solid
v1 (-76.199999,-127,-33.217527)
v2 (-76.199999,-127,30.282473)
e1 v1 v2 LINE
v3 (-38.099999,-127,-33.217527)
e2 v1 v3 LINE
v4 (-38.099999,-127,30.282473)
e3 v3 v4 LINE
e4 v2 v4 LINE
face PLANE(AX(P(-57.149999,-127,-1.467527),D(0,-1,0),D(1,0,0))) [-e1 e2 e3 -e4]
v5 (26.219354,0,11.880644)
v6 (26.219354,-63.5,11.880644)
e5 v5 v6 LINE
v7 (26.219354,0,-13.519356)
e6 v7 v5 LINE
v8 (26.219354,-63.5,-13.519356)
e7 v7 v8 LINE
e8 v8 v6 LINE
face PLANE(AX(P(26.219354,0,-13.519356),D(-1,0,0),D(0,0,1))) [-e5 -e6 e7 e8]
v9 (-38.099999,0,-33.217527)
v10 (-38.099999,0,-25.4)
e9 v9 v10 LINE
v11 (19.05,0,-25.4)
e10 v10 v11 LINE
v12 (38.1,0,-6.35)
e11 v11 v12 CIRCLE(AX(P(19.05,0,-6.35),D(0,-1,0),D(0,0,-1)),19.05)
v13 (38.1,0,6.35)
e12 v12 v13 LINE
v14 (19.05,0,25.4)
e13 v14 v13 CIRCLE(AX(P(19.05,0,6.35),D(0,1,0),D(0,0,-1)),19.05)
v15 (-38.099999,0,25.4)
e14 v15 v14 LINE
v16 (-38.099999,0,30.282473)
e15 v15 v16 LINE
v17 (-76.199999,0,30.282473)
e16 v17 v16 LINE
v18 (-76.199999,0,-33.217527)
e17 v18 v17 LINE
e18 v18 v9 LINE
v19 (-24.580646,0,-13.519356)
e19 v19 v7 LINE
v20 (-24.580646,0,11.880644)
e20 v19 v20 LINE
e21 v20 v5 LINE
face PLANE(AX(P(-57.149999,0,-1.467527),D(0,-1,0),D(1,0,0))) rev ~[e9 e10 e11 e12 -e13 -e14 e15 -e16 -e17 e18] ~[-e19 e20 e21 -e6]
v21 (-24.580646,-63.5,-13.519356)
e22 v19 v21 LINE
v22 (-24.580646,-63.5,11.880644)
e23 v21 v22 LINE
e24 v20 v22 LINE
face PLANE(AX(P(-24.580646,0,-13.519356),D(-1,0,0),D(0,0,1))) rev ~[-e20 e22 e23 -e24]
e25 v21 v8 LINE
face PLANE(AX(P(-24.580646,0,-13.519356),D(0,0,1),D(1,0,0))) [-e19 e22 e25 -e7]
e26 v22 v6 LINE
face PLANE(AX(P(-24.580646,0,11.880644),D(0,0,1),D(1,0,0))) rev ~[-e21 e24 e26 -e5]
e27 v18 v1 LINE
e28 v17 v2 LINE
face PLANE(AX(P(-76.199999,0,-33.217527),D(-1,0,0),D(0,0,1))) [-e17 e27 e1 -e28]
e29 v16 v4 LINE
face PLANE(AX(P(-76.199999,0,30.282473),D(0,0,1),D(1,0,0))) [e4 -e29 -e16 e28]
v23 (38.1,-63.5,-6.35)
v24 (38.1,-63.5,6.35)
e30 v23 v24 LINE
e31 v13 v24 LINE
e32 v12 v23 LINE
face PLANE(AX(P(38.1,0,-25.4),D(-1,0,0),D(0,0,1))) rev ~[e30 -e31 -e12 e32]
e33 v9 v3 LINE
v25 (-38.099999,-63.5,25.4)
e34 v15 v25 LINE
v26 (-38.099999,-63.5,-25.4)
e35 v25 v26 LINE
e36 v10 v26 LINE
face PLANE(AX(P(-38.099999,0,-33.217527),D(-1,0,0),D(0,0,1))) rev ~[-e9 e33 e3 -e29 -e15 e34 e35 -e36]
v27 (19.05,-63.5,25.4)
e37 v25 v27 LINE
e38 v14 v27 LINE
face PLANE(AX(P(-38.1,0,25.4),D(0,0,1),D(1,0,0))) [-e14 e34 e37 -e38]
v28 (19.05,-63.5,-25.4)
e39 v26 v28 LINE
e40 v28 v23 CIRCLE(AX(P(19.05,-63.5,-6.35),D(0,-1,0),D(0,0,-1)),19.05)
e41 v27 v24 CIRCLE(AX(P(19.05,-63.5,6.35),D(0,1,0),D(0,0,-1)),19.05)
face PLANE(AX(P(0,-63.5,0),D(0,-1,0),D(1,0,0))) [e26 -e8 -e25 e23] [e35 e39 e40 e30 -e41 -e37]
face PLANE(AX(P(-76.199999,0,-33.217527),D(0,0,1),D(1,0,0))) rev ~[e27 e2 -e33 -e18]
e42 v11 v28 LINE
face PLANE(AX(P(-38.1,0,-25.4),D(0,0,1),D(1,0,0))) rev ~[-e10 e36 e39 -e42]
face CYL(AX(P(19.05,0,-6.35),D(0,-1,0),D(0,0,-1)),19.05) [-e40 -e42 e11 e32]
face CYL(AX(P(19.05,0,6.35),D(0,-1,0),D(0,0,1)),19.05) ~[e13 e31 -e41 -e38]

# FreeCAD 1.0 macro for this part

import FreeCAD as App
import Part
import Sketcher
from FreeCAD import Vector
Q = App.Units.Quantity


def edges_at(feature, points):
    """Names of the edges that pass closest to the given points."""
    edges = feature.Shape.Edges
    near = lambda p: min(range(len(edges)), key=lambda i: edges[i].distToShape(Part.Vertex(*p))[0])
    return sorted({f"Edge{near(p) + 1}" for p in points})

doc = App.newDocument("Part")
body = doc.addObject("PartDesign::Body", "Body")

# Sketch on XZ plane
sketch1 = body.newObject("Sketcher::SketchObject", "Sketch")
sketch1.AttachmentSupport = (doc.getObject("XZ_Plane"), [""])
sketch1.MapMode = "FlatFace"
sketch1.addGeometry([
    Part.LineSegment(Vector(-38, 25, 0), Vector(-38, -25, 0)),  # 0
    Part.LineSegment(Vector(-38, -25, 0), Vector(38, -25, 0)),  # 1
    Part.LineSegment(Vector(38, -25, 0), Vector(38, 25, 0)),  # 2
    Part.LineSegment(Vector(38, 25, 0), Vector(-38, 25, 0)),  # 3
    Part.LineSegment(Vector(26, -14, 0), Vector(-25, -14, 0)),  # 4
    Part.LineSegment(Vector(-25, -14, 0), Vector(-25, 12, 0)),  # 5
    Part.LineSegment(Vector(-25, 12, 0), Vector(26, 12, 0)),  # 6
    Part.LineSegment(Vector(26, 12, 0), Vector(26, -14, 0)),  # 7
], False)
sketch1.addConstraint([
    Sketcher.Constraint("Coincident", 0, 2, 1, 1),
    Sketcher.Constraint("Coincident", 1, 2, 2, 1),
    Sketcher.Constraint("Coincident", 2, 2, 3, 1),
    Sketcher.Constraint("Coincident", 3, 2, 0, 1),
    Sketcher.Constraint("Coincident", 4, 2, 5, 1),
    Sketcher.Constraint("Coincident", 5, 2, 6, 1),
    Sketcher.Constraint("Coincident", 6, 2, 7, 1),
    Sketcher.Constraint("Coincident", 7, 2, 4, 1),
    Sketcher.Constraint("Vertical", 0),
    Sketcher.Constraint("Horizontal", 1),
    Sketcher.Constraint("Vertical", 2),
    Sketcher.Constraint("Horizontal", 3),
    Sketcher.Constraint("Horizontal", 4),
    Sketcher.Constraint("Vertical", 5),
    Sketcher.Constraint("Horizontal", 6),
    Sketcher.Constraint("Vertical", 7),
    Sketcher.Constraint("Symmetric", 0, 2, 2, 2, -1, 1),
    Sketcher.Constraint("Equal", 6, 0),
    Sketcher.Constraint("DistanceX", 1, 1, 1, 2, Q("3 in")),
    Sketcher.Constraint("DistanceX", 4, 2, 4, 1, Q("2 in")),
    Sketcher.Constraint("DistanceY", 5, 1, 5, 2, Q("1 in")),
    Sketcher.Constraint("DistanceX", 4, 2, -1, 1, Q("24.580646 mm")),
    Sketcher.Constraint("DistanceY", 4, 2, -1, 1, Q("13.519356 mm")),
])
pad1 = body.newObject("PartDesign::Pad", "Pad")
pad1.Profile = sketch1
pad1.Length = Q("2.5 in")
doc.recompute()

fillet = body.newObject("PartDesign::Fillet", "Fillet")
fillet.Base = (pad1, edges_at(pad1, [(38.1, -31.75, 25.4), (38.1, -31.75, -25.4)]))
fillet.Radius = Q("0.75 in")

# Sketch on XZ plane
sketch2 = body.newObject("Sketcher::SketchObject", "Sketch001")
sketch2.AttachmentSupport = (doc.getObject("XZ_Plane"), [""])
sketch2.MapMode = "FlatFace"
sketch2.addGeometry([
    Part.LineSegment(Vector(-76, 30, 0), Vector(-76, -33, 0)),
    Part.LineSegment(Vector(-76, -33, 0), Vector(-38, -33, 0)),
    Part.LineSegment(Vector(-38, -33, 0), Vector(-38, 30, 0)),
    Part.LineSegment(Vector(-38, 30, 0), Vector(-76, 30, 0)),
], False)
sketch2.addConstraint([
    Sketcher.Constraint("Coincident", 0, 2, 1, 1),
    Sketcher.Constraint("Coincident", 1, 2, 2, 1),
    Sketcher.Constraint("Coincident", 2, 2, 3, 1),
    Sketcher.Constraint("Coincident", 3, 2, 0, 1),
    Sketcher.Constraint("Vertical", 0),
    Sketcher.Constraint("Horizontal", 1),
    Sketcher.Constraint("Vertical", 2),
    Sketcher.Constraint("Horizontal", 3),
    Sketcher.Constraint("DistanceX", 1, 1, 1, 2, Q("1.5 in")),
    Sketcher.Constraint("DistanceY", 0, 2, 0, 1, Q("2.5 in")),
    Sketcher.Constraint("DistanceX", 0, 2, -1, 1, Q("3 in")),
    Sketcher.Constraint("DistanceY", 0, 2, -1, 1, Q("33.217527 mm")),
])
pad2 = body.newObject("PartDesign::Pad", "Pad001")
pad2.Profile = sketch2
pad2.Length = Q("5 in")

doc.recompute()
